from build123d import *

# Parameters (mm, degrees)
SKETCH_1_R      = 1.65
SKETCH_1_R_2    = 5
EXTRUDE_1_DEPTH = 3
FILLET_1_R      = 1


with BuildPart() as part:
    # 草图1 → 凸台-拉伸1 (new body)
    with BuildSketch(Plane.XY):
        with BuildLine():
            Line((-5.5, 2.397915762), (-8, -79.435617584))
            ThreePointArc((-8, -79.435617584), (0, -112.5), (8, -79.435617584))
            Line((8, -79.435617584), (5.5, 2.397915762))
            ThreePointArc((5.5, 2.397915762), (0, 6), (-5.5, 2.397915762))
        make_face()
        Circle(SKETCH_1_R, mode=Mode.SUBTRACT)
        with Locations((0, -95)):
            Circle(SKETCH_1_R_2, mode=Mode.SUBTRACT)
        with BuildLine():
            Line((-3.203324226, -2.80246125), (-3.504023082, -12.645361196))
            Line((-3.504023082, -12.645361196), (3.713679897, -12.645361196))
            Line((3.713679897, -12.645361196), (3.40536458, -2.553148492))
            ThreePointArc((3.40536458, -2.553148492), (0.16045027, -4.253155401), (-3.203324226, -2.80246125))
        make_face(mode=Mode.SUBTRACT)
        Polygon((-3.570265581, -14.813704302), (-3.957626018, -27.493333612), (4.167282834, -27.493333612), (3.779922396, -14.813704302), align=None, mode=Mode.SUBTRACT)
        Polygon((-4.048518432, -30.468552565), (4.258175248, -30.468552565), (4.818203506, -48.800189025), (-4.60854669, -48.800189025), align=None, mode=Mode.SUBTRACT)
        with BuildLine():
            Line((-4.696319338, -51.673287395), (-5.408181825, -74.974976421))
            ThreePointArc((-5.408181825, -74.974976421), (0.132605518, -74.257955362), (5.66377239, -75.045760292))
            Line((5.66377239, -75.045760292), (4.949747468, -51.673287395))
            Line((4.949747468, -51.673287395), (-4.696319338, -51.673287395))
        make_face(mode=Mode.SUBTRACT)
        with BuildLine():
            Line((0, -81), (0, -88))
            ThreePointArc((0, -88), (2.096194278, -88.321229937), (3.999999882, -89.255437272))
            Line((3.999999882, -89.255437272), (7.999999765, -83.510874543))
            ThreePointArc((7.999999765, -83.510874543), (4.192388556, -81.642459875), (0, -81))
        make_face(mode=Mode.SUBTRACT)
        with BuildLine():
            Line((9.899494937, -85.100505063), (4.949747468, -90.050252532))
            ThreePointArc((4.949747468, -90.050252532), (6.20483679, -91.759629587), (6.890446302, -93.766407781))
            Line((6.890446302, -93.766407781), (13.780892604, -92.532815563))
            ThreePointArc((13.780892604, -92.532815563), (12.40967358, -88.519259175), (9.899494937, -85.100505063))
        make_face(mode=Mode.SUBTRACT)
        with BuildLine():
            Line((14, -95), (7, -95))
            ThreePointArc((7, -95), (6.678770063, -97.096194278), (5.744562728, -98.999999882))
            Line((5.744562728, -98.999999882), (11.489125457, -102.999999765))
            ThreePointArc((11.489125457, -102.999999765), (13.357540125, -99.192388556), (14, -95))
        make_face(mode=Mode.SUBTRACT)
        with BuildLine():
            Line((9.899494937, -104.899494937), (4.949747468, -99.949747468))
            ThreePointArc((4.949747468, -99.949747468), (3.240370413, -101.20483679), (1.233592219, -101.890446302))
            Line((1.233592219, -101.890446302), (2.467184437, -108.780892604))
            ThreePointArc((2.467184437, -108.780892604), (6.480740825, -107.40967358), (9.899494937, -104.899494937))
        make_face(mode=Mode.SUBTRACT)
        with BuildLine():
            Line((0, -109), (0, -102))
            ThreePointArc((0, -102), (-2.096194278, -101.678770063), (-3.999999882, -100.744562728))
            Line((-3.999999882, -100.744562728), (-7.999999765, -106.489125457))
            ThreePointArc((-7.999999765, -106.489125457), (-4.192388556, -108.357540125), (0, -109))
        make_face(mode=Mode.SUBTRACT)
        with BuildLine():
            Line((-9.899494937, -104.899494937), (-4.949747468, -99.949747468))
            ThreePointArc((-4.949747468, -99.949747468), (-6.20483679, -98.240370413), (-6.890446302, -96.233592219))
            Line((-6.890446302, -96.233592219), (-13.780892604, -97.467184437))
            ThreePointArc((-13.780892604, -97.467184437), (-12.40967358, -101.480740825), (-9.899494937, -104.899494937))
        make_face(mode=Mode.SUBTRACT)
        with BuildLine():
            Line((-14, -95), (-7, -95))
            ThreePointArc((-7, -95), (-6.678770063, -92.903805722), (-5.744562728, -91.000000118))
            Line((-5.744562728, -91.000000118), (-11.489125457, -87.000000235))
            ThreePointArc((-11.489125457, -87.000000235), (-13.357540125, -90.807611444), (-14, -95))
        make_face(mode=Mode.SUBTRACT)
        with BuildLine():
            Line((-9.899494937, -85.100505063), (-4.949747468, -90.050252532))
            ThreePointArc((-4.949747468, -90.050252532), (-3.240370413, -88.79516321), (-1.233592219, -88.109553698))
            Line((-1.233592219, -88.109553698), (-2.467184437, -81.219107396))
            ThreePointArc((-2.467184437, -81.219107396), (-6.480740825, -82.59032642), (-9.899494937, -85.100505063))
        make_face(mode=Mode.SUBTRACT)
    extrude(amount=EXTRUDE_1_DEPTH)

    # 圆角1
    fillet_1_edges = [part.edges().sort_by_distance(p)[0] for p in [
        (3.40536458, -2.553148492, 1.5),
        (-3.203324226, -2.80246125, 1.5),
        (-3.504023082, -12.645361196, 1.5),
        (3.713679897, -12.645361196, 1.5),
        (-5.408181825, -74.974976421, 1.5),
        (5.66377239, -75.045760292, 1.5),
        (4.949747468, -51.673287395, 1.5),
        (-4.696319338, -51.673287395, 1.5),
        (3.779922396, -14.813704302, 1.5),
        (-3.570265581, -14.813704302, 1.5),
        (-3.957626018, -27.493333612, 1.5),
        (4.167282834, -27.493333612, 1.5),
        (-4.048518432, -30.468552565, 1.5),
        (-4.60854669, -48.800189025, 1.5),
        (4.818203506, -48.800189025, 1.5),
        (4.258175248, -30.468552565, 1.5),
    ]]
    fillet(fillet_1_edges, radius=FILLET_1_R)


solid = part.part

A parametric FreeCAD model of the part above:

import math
import FreeCAD as App
import Part
import Sketcher
Q = App.Units.Quantity


def edges_at(feature, points):
    """Names of the edges that pass closest to the given points."""
    edges = feature.Shape.Edges
    near = lambda p: min(range(len(edges)), key=lambda i: edges[i].distToShape(Part.Vertex(*p))[0])
    return sorted({f"Edge{near(p) + 1}" for p in points})

doc = App.newDocument("Part")
body = doc.addObject("PartDesign::Body", "Body")

sketch1 = body.newObject("Sketcher::SketchObject", "Sketch")
sketch1.AttachmentSupport = (doc.getObject("XY_Plane"), [""])
sketch1.MapMode = "FlatFace"
sketch1.addGeometry([
    Part.LineSegment(App.Vector(-5.5, 2.4, 0), App.Vector(-8, -79.4, 0)),
    Part.ArcOfCircle(Part.Circle(App.Vector(0, -95, 0), App.Vector(0, 0, 1), 17.5), math.radians(117), math.radians(423)),
    Part.LineSegment(App.Vector(8, -79.4, 0), App.Vector(5.5, 2.4, 0)),
    Part.ArcOfCircle(Part.Circle(App.Vector(0, 0, 0), App.Vector(0, 0, 1), 6), math.radians(24), math.radians(156)),
    Part.LineSegment(App.Vector(-4.9, -99.9, 0), App.Vector(-9.9, -104.9, 0)),
    Part.ArcOfCircle(Part.Circle(App.Vector(0, -95, 0), App.Vector(0, 0, 1), 14), math.radians(-170), math.radians(-135)),
    Part.LineSegment(App.Vector(-13.8, -97.5, 0), App.Vector(-6.9, -96.2, 0)),
    Part.ArcOfCircle(Part.Circle(App.Vector(0, -95, 0), App.Vector(0, 0, 1), 7), math.radians(-170), math.radians(-135)),
    Part.LineSegment(App.Vector(-7, -95, 0), App.Vector(-14, -95, 0)),
    Part.ArcOfCircle(Part.Circle(App.Vector(0, -95, 0), App.Vector(0, 0, 1), 14), math.radians(145), math.radians(180)),
    Part.LineSegment(App.Vector(-11.5, -87, 0), App.Vector(-5.7, -91, 0)),
    Part.ArcOfCircle(Part.Circle(App.Vector(0, -95, 0), App.Vector(0, 0, 1), 7), math.radians(145), math.radians(180)),
    Part.LineSegment(App.Vector(0, -102, 0), App.Vector(0, -109, 0)),
    Part.ArcOfCircle(Part.Circle(App.Vector(0, -95, 0), App.Vector(0, 0, 1), 14), math.radians(-125), math.radians(-90)),
    Part.LineSegment(App.Vector(-8, -106.5, 0), App.Vector(-4, -100.7, 0)),
    Part.ArcOfCircle(Part.Circle(App.Vector(0, -95, 0), App.Vector(0, 0, 1), 7), math.radians(-125), math.radians(-90)),
    Part.LineSegment(App.Vector(-4.9, -90.1, 0), App.Vector(-9.9, -85.1, 0)),
    Part.ArcOfCircle(Part.Circle(App.Vector(0, -95, 0), App.Vector(0, 0, 1), 14), math.radians(100), math.radians(135)),
    Part.LineSegment(App.Vector(-2.5, -81.2, 0), App.Vector(-1.2, -88.1, 0)),
    Part.ArcOfCircle(Part.Circle(App.Vector(0, -95, 0), App.Vector(0, 0, 1), 7), math.radians(100), math.radians(135)),
    Part.LineSegment(App.Vector(4.9, -99.9, 0), App.Vector(9.9, -104.9, 0)),
    Part.ArcOfCircle(Part.Circle(App.Vector(0, -95, 0), App.Vector(0, 0, 1), 14), math.radians(-80), math.radians(-45)),
    Part.LineSegment(App.Vector(2.5, -108.8, 0), App.Vector(1.2, -101.9, 0)),
    Part.ArcOfCircle(Part.Circle(App.Vector(0, -95, 0), App.Vector(0, 0, 1), 7), math.radians(-80), math.radians(-45)),
    Part.Circle(App.Vector(0, -95, 0), App.Vector(0, 0, 1), 5),
    Part.LineSegment(App.Vector(0, -88, 0), App.Vector(0, -81, 0)),
    Part.ArcOfCircle(Part.Circle(App.Vector(0, -95, 0), App.Vector(0, 0, 1), 14), math.radians(55), math.radians(90)),
    Part.LineSegment(App.Vector(8, -83.5, 0), App.Vector(4, -89.3, 0)),
    Part.ArcOfCircle(Part.Circle(App.Vector(0, -95, 0), App.Vector(0, 0, 1), 7), math.radians(55), math.radians(90)),
    Part.LineSegment(App.Vector(7, -95, 0), App.Vector(14, -95, 0)),
    Part.ArcOfCircle(Part.Circle(App.Vector(0, -95, 0), App.Vector(0, 0, 1), 14), math.radians(-35), math.radians(0)),
    Part.LineSegment(App.Vector(11.5, -103, 0), App.Vector(5.7, -99, 0)),
    Part.ArcOfCircle(Part.Circle(App.Vector(0, -95, 0), App.Vector(0, 0, 1), 7), math.radians(-35), math.radians(0)),
    Part.LineSegment(App.Vector(4.9, -90.1, 0), App.Vector(9.9, -85.1, 0)),
    Part.ArcOfCircle(Part.Circle(App.Vector(0, -95, 0), App.Vector(0, 0, 1), 14), math.radians(10), math.radians(45)),
    Part.LineSegment(App.Vector(13.8, -92.5, 0), App.Vector(6.9, -93.8, 0)),
    Part.ArcOfCircle(Part.Circle(App.Vector(0, -95, 0), App.Vector(0, 0, 1), 7), math.radians(10), math.radians(45)),
    Part.LineSegment(App.Vector(-5.4, -75, 0), App.Vector(-4.7, -51.7, 0)),
    Part.LineSegment(App.Vector(-4.7, -51.7, 0), App.Vector(4.9, -51.7, 0)),
    Part.LineSegment(App.Vector(4.9, -51.7, 0), App.Vector(5.7, -75, 0)),
    Part.ArcOfCircle(Part.Circle(App.Vector(0, -95, 0), App.Vector(0, 0, 1), 20.7), math.radians(74), math.radians(105)),
    Part.LineSegment(App.Vector(-4.6, -48.8, 0), App.Vector(-4, -30.5, 0)),
    Part.LineSegment(App.Vector(-4, -30.5, 0), App.Vector(4.3, -30.5, 0)),
    Part.LineSegment(App.Vector(4.3, -30.5, 0), App.Vector(4.8, -48.8, 0)),
    Part.LineSegment(App.Vector(4.8, -48.8, 0), App.Vector(-4.6, -48.8, 0)),
    Part.LineSegment(App.Vector(-4, -27.5, 0), App.Vector(-3.6, -14.8, 0)),
    Part.LineSegment(App.Vector(-3.6, -14.8, 0), App.Vector(3.8, -14.8, 0)),
    Part.LineSegment(App.Vector(3.8, -14.8, 0), App.Vector(4.2, -27.5, 0)),
    Part.LineSegment(App.Vector(4.2, -27.5, 0), App.Vector(-4, -27.5, 0)),
    Part.LineSegment(App.Vector(-3.5, -12.6, 0), App.Vector(-3.2, -2.8, 0)),
    Part.ArcOfCircle(Part.Circle(App.Vector(0, 0, 0), App.Vector(0, 0, 1), 4.3), math.radians(-139), math.radians(-37)),
    Part.LineSegment(App.Vector(3.4, -2.6, 0), App.Vector(3.7, -12.6, 0)),
    Part.LineSegment(App.Vector(3.7, -12.6, 0), App.Vector(-3.5, -12.6, 0)),
    Part.Circle(App.Vector(0, 0, 0), App.Vector(0, 0, 1), 1.6),
], False)
sketch1.addConstraint([
    Sketcher.Constraint("Coincident", 0, 2, 1, 1),
    Sketcher.Constraint("Coincident", 1, 2, 2, 1),
    Sketcher.Constraint("Coincident", 2, 2, 3, 1),
    Sketcher.Constraint("Coincident", 3, 2, 0, 1),
    Sketcher.Constraint("Coincident", 4, 2, 5, 2),
    Sketcher.Constraint("Coincident", 5, 1, 6, 1),
    Sketcher.Constraint("Coincident", 6, 2, 7, 1),
    Sketcher.Constraint("Coincident", 7, 2, 4, 1),
    Sketcher.Constraint("Coincident", 8, 2, 9, 2),
    Sketcher.Constraint("Coincident", 9, 1, 10, 1),
    Sketcher.Constraint("Coincident", 10, 2, 11, 1),
    Sketcher.Constraint("Coincident", 11, 2, 8, 1),
    Sketcher.Constraint("Coincident", 12, 2, 13, 2),
    Sketcher.Constraint("Coincident", 13, 1, 14, 1),
    Sketcher.Constraint("Coincident", 14, 2, 15, 1),
    Sketcher.Constraint("Coincident", 15, 2, 12, 1),
    Sketcher.Constraint("Coincident", 16, 2, 17, 2),
    Sketcher.Constraint("Coincident", 17, 1, 18, 1),
    Sketcher.Constraint("Coincident", 18, 2, 19, 1),
    Sketcher.Constraint("Coincident", 19, 2, 16, 1),
    Sketcher.Constraint("Coincident", 20, 2, 21, 2),
    Sketcher.Constraint("Coincident", 21, 1, 22, 1),
    Sketcher.Constraint("Coincident", 22, 2, 23, 1),
    Sketcher.Constraint("Coincident", 23, 2, 20, 1),
    Sketcher.Constraint("Coincident", 25, 2, 26, 2),
    Sketcher.Constraint("Coincident", 26, 1, 27, 1),
    Sketcher.Constraint("Coincident", 27, 2, 28, 1),
    Sketcher.Constraint("Coincident", 28, 2, 25, 1),
    Sketcher.Constraint("Coincident", 29, 2, 30, 2),
    Sketcher.Constraint("Coincident", 30, 1, 31, 1),
    Sketcher.Constraint("Coincident", 31, 2, 32, 1),
    Sketcher.Constraint("Coincident", 32, 2, 29, 1),
    Sketcher.Constraint("Coincident", 33, 2, 34, 2),
    Sketcher.Constraint("Coincident", 34, 1, 35, 1),
    Sketcher.Constraint("Coincident", 35, 2, 36, 1),
    Sketcher.Constraint("Coincident", 36, 2, 33, 1),
    Sketcher.Constraint("Coincident", 37, 2, 38, 1),
    Sketcher.Constraint("Coincident", 38, 2, 39, 1),
    Sketcher.Constraint("Coincident", 39, 2, 40, 1),
    Sketcher.Constraint("Coincident", 40, 2, 37, 1),
    Sketcher.Constraint("Coincident", 41, 2, 42, 1),
    Sketcher.Constraint("Coincident", 42, 2, 43, 1),
    Sketcher.Constraint("Coincident", 43, 2, 44, 1),
    Sketcher.Constraint("Coincident", 44, 2, 41, 1),
    Sketcher.Constraint("Coincident", 45, 2, 46, 1),
    Sketcher.Constraint("Coincident", 46, 2, 47, 1),
    Sketcher.Constraint("Coincident", 47, 2, 48, 1),
    Sketcher.Constraint("Coincident", 48, 2, 45, 1),
    Sketcher.Constraint("Coincident", 49, 2, 50, 1),
    Sketcher.Constraint("Coincident", 50, 2, 51, 1),
    Sketcher.Constraint("Coincident", 51, 2, 52, 1),
    Sketcher.Constraint("Coincident", 52, 2, 49, 1),
    Sketcher.Constraint("Horizontal", 8),
    Sketcher.Constraint("Vertical", 12),
    Sketcher.Constraint("Vertical", 25),
    Sketcher.Constraint("Horizontal", 29),
    Sketcher.Constraint("Horizontal", 38),
    Sketcher.Constraint("Horizontal", 42),
    Sketcher.Constraint("Horizontal", 44),
    Sketcher.Constraint("Horizontal", 46),
    Sketcher.Constraint("Horizontal", 48),
    Sketcher.Constraint("Horizontal", 52),
    Sketcher.Constraint("Coincident", 3, 3, -1, 1),
    Sketcher.Constraint("Coincident", 50, 3, -1, 1),
    Sketcher.Constraint("Coincident", 53, 3, -1, 1),
    Sketcher.Constraint("Coincident", 5, 3, 1, 3),
    Sketcher.Constraint("Coincident", 7, 3, 1, 3),
    Sketcher.Constraint("Coincident", 9, 3, 1, 3),
    Sketcher.Constraint("Coincident", 11, 3, 1, 3),
    Sketcher.Constraint("Coincident", 13, 3, 1, 3),
    Sketcher.Constraint("Coincident", 15, 3, 1, 3),
    Sketcher.Constraint("Coincident", 17, 3, 1, 3),
    Sketcher.Constraint("Coincident", 19, 3, 1, 3),
    Sketcher.Constraint("Coincident", 21, 3, 1, 3),
    Sketcher.Constraint("Coincident", 23, 3, 1, 3),
    Sketcher.Constraint("Coincident", 24, 3, 1, 3),
    Sketcher.Constraint("Coincident", 26, 3, 1, 3),
    Sketcher.Constraint("Coincident", 28, 3, 1, 3),
    Sketcher.Constraint("Coincident", 30, 3, 1, 3),
    Sketcher.Constraint("Coincident", 32, 3, 1, 3),
    Sketcher.Constraint("Coincident", 34, 3, 1, 3),
    Sketcher.Constraint("Coincident", 36, 3, 1, 3),
    Sketcher.Constraint("Coincident", 40, 3, 1, 3),
    Sketcher.Constraint("Equal", 5, 9),
    Sketcher.Constraint("Equal", 7, 11),
    Sketcher.Constraint("Equal", 9, 13),
    Sketcher.Constraint("Equal", 11, 15),
    Sketcher.Constraint("Equal", 13, 17),
    Sketcher.Constraint("Equal", 15, 19),
    Sketcher.Constraint("Equal", 17, 21),
    Sketcher.Constraint("Equal", 19, 23),
    Sketcher.Constraint("Equal", 21, 26),
    Sketcher.Constraint("Equal", 23, 28),
    Sketcher.Constraint("Equal", 26, 30),
    Sketcher.Constraint("Equal", 28, 32),
    Sketcher.Constraint("Equal", 30, 34),
    Sketcher.Constraint("Equal", 32, 36),
    Sketcher.Constraint("Symmetric", 0, 2, 1, 2, -2),
    Sketcher.Constraint("PointOnObject", 12, 2, -2),
    Sketcher.Constraint("PointOnObject", 25, 2, -2),
    Sketcher.Constraint("Perpendicular", 10, 14),
    Sketcher.Constraint("Perpendicular", 4, 16),
    Sketcher.Constraint("Perpendicular", 6, 18),
    Sketcher.Constraint("Parallel", 16, 20),
    Sketcher.Constraint("Parallel", 18, 22),
    Sketcher.Constraint("Parallel", 14, 27),
    Sketcher.Constraint("Perpendicular", 27, 31),
    Sketcher.Constraint("Perpendicular", 20, 33),
    Sketcher.Constraint("Perpendicular", 22, 35),
    Sketcher.Constraint("Parallel", 0, 37),
    Sketcher.Constraint("Parallel", 2, 39),
    Sketcher.Constraint("Parallel", 37, 41),
    Sketcher.Constraint("Parallel", 39, 43),
    Sketcher.Constraint("Parallel", 41, 45),
    Sketcher.Constraint("Parallel", 43, 47),
    Sketcher.Constraint("Parallel", 45, 49),
    Sketcher.Constraint("Parallel", 47, 51),
    Sketcher.Constraint("Horizontal", 2, 2, 3, 2),
    Sketcher.Constraint("Horizontal", 40, 3, 8, 2),
    Sketcher.Constraint("Horizontal", 4, 2, 20, 2),
    Sketcher.Constraint("Horizontal", 7, 2, 23, 2),
    Sketcher.Constraint("Horizontal", 11, 2, 29, 2),
    Sketcher.Constraint("Horizontal", 16, 2, 33, 2),
    Sketcher.Constraint("Vertical", 0, 2, 13, 1),
    Sketcher.Constraint("Vertical", 4, 2, 16, 2),
    Sketcher.Constraint("Vertical", 1, 2, 26, 1),
    Sketcher.Constraint("Vertical", 36, 2, 38, 2),
    Sketcher.Constraint("Diameter", 24, Q("10 mm")),
    Sketcher.Constraint("Radius", 3, Q("6 mm")),
    Sketcher.Constraint("Radius", 5, Q("14 mm")),
    Sketcher.Constraint("Radius", 7, Q("7 mm")),
    Sketcher.Constraint("Diameter", 53, Q("3.3 mm")),
    Sketcher.Constraint("Radius", 1, Q("17.5 mm")),
    Sketcher.Constraint("DistanceY", 1, 3, -1, 1, Q("95 mm")),
    Sketcher.Constraint("DistanceX", 0, 2, -1, 1, Q("8 mm")),
    Sketcher.Constraint("DistanceY", 9, 1, -1, 1, Q("87 mm")),
    Sketcher.Constraint("DistanceY", 10, 2, -1, 1, Q("91 mm")),
    Sketcher.Constraint("DistanceY", 30, 1, -1, 1, Q("103 mm")),
    Sketcher.Constraint("DistanceX", -1, 1, 2, 2, Q("5.5 mm")),
    Sketcher.Constraint("Radius", 40, Q("20.742469 mm")),
    Sketcher.Constraint("Radius", 50, Q("4.256181 mm")),
    Sketcher.Constraint("DistanceX", 44, 2, 44, 1, Q("9.42675 mm")),
    Sketcher.Constraint("DistanceX", 48, 2, 48, 1, Q("8.124909 mm")),
    Sketcher.Constraint("Distance", 37, Q("23.31256 mm")),
    Sketcher.Constraint("Distance", 41, Q("18.340189 mm")),
    Sketcher.Constraint("Distance", 51, Q("10.096921 mm")),
    Sketcher.Constraint("DistanceX", 38, 1, 38, 2, Q("9.646067 mm")),
    Sketcher.Constraint("DistanceX", 46, 1, 46, 2, Q("7.350188 mm")),
    Sketcher.Constraint("DistanceX", 52, 2, 52, 1, Q("7.217703 mm")),
    Sketcher.Constraint("DistanceX", 37, 2, -1, 1, Q("4.696319 mm")),
    Sketcher.Constraint("DistanceX", 41, 2, -1, 1, Q("4.048518 mm")),
    Sketcher.Constraint("DistanceY", 43, 2, -1, 1, Q("48.800189 mm")),
    Sketcher.Constraint("DistanceY", 49, 2, -1, 1, Q("2.802461 mm")),
    Sketcher.Constraint("DistanceX", 5, 1, -1, 1, Q("13.780893 mm")),
    Sketcher.Constraint("DistanceX", 6, 2, -1, 1, Q("6.890446 mm")),
    Sketcher.Constraint("DistanceX", 17, 1, -1, 1, Q("2.467184 mm")),
    Sketcher.Constraint("DistanceX", -1, 1, 21, 1, Q("2.467184 mm")),
    Sketcher.Constraint("DistanceX", -1, 1, 34, 1, Q("13.780893 mm")),
    Sketcher.Constraint("DistanceX", 45, 2, -1, 1, Q("3.570266 mm")),
    Sketcher.Constraint("DistanceY", 45, 2, -1, 1, Q("14.813704 mm")),
])
pad1 = body.newObject("PartDesign::Pad", "Pad")
pad1.Profile = sketch1
pad1.Length = 3
doc.recompute()

fillet = body.newObject("PartDesign::Fillet", "Fillet")
fillet.Base = (pad1, edges_at(pad1, [
    (3.405, -2.553, 1.5),
    (-3.203, -2.802, 1.5),
    (-3.504, -12.645, 1.5),
    (3.714, -12.645, 1.5),
    (-5.408, -74.975, 1.5),
    (5.664, -75.046, 1.5),
    (4.95, -51.673, 1.5),
    (-4.696, -51.673, 1.5),
    (3.78, -14.814, 1.5),
    (-3.57, -14.814, 1.5),
    (-3.958, -27.493, 1.5),
    (4.167, -27.493, 1.5),
    (-4.049, -30.469, 1.5),
    (-4.609, -48.8, 1.5),
    (4.818, -48.8, 1.5),
    (4.258, -30.469, 1.5),
]))
fillet.Radius = 1

doc.recompute()
